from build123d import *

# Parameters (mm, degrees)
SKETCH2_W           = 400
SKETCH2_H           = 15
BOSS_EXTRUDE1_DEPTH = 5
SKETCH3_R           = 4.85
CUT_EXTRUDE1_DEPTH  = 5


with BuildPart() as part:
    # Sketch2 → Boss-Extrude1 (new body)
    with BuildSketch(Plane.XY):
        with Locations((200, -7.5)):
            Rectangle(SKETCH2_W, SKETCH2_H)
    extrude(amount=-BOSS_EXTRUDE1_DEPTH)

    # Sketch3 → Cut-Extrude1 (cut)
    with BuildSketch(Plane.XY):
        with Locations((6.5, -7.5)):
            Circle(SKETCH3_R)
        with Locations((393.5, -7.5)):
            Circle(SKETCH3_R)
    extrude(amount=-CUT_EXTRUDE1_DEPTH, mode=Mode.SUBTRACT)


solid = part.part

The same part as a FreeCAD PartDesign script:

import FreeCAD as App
import Part
import Sketcher

V = App.Vector
Q = App.Units.Quantity


def add_polygon(sketch, points):
    """Adds a closed chain of lines whose ends are joined by coincident constraints."""
    first, n = sketch.GeometryCount, len(points)
    for a, b in zip(points, points[1:] + points[:1]):
        sketch.addGeometry(Part.LineSegment(App.Vector(*a, 0), App.Vector(*b, 0)), False)
    for i in range(n):
        sketch.addConstraint(Sketcher.Constraint("Coincident", first + i, 2, first + (i + 1) % n, 1))

doc = App.newDocument("Part")
body = doc.addObject("PartDesign::Body", "Body")

# Sketch on XY plane
sketch1 = body.newObject("Sketcher::SketchObject", "Sketch")
sketch1.AttachmentSupport = (doc.getObject("XY_Plane"), [""])
sketch1.MapMode = "FlatFace"
add_polygon(sketch1, [(0, 0), (0, -15), (400, -15), (400, 0)])  # lines 0-3
sketch1.addConstraint([
    Sketcher.Constraint("Vertical", 0),
    Sketcher.Constraint("Horizontal", 1),
    Sketcher.Constraint("Vertical", 2),
    Sketcher.Constraint("Horizontal", 3),
    Sketcher.Constraint("Coincident", 3, 2, -1, 1),
    Sketcher.Constraint("DistanceX", 1, 1, 1, 2, Q("400 mm")),
    Sketcher.Constraint("DistanceY", 0, 2, 0, 1, Q("15 mm")),
])
pad1 = body.newObject("PartDesign::Pad", "Pad")
pad1.Profile = sketch1
pad1.Length = 5
pad1.Reversed = True

# Sketch on XY plane
sketch2 = body.newObject("Sketcher::SketchObject", "Sketch001")
sketch2.AttachmentSupport = (doc.getObject("XY_Plane"), [""])
sketch2.MapMode = "FlatFace"
sketch2.addGeometry([
    Part.Circle(V(6.5, -7.5, 0), V(0, 0, 1), 4.8),
    Part.Circle(V(393.5, -7.5, 0), V(0, 0, 1), 4.8),
], False)
sketch2.addConstraint([
    Sketcher.Constraint("Equal", 0, 1),
    Sketcher.Constraint("Horizontal", 0, 3, 1, 3),
    Sketcher.Constraint("Diameter", 0, Q("9.7 mm")),
    Sketcher.Constraint("DistanceX", 0, 3, 1, 3, Q("387 mm")),
    Sketcher.Constraint("DistanceX", -1, 1, 0, 3, Q("6.5 mm")),
    Sketcher.Constraint("DistanceY", 0, 3, -1, 1, Q("7.5 mm")),
])
pocket1 = body.newObject("PartDesign::Pocket", "Pocket")
pocket1.Profile = sketch2
pocket1.Length = 5

doc.recompute()
